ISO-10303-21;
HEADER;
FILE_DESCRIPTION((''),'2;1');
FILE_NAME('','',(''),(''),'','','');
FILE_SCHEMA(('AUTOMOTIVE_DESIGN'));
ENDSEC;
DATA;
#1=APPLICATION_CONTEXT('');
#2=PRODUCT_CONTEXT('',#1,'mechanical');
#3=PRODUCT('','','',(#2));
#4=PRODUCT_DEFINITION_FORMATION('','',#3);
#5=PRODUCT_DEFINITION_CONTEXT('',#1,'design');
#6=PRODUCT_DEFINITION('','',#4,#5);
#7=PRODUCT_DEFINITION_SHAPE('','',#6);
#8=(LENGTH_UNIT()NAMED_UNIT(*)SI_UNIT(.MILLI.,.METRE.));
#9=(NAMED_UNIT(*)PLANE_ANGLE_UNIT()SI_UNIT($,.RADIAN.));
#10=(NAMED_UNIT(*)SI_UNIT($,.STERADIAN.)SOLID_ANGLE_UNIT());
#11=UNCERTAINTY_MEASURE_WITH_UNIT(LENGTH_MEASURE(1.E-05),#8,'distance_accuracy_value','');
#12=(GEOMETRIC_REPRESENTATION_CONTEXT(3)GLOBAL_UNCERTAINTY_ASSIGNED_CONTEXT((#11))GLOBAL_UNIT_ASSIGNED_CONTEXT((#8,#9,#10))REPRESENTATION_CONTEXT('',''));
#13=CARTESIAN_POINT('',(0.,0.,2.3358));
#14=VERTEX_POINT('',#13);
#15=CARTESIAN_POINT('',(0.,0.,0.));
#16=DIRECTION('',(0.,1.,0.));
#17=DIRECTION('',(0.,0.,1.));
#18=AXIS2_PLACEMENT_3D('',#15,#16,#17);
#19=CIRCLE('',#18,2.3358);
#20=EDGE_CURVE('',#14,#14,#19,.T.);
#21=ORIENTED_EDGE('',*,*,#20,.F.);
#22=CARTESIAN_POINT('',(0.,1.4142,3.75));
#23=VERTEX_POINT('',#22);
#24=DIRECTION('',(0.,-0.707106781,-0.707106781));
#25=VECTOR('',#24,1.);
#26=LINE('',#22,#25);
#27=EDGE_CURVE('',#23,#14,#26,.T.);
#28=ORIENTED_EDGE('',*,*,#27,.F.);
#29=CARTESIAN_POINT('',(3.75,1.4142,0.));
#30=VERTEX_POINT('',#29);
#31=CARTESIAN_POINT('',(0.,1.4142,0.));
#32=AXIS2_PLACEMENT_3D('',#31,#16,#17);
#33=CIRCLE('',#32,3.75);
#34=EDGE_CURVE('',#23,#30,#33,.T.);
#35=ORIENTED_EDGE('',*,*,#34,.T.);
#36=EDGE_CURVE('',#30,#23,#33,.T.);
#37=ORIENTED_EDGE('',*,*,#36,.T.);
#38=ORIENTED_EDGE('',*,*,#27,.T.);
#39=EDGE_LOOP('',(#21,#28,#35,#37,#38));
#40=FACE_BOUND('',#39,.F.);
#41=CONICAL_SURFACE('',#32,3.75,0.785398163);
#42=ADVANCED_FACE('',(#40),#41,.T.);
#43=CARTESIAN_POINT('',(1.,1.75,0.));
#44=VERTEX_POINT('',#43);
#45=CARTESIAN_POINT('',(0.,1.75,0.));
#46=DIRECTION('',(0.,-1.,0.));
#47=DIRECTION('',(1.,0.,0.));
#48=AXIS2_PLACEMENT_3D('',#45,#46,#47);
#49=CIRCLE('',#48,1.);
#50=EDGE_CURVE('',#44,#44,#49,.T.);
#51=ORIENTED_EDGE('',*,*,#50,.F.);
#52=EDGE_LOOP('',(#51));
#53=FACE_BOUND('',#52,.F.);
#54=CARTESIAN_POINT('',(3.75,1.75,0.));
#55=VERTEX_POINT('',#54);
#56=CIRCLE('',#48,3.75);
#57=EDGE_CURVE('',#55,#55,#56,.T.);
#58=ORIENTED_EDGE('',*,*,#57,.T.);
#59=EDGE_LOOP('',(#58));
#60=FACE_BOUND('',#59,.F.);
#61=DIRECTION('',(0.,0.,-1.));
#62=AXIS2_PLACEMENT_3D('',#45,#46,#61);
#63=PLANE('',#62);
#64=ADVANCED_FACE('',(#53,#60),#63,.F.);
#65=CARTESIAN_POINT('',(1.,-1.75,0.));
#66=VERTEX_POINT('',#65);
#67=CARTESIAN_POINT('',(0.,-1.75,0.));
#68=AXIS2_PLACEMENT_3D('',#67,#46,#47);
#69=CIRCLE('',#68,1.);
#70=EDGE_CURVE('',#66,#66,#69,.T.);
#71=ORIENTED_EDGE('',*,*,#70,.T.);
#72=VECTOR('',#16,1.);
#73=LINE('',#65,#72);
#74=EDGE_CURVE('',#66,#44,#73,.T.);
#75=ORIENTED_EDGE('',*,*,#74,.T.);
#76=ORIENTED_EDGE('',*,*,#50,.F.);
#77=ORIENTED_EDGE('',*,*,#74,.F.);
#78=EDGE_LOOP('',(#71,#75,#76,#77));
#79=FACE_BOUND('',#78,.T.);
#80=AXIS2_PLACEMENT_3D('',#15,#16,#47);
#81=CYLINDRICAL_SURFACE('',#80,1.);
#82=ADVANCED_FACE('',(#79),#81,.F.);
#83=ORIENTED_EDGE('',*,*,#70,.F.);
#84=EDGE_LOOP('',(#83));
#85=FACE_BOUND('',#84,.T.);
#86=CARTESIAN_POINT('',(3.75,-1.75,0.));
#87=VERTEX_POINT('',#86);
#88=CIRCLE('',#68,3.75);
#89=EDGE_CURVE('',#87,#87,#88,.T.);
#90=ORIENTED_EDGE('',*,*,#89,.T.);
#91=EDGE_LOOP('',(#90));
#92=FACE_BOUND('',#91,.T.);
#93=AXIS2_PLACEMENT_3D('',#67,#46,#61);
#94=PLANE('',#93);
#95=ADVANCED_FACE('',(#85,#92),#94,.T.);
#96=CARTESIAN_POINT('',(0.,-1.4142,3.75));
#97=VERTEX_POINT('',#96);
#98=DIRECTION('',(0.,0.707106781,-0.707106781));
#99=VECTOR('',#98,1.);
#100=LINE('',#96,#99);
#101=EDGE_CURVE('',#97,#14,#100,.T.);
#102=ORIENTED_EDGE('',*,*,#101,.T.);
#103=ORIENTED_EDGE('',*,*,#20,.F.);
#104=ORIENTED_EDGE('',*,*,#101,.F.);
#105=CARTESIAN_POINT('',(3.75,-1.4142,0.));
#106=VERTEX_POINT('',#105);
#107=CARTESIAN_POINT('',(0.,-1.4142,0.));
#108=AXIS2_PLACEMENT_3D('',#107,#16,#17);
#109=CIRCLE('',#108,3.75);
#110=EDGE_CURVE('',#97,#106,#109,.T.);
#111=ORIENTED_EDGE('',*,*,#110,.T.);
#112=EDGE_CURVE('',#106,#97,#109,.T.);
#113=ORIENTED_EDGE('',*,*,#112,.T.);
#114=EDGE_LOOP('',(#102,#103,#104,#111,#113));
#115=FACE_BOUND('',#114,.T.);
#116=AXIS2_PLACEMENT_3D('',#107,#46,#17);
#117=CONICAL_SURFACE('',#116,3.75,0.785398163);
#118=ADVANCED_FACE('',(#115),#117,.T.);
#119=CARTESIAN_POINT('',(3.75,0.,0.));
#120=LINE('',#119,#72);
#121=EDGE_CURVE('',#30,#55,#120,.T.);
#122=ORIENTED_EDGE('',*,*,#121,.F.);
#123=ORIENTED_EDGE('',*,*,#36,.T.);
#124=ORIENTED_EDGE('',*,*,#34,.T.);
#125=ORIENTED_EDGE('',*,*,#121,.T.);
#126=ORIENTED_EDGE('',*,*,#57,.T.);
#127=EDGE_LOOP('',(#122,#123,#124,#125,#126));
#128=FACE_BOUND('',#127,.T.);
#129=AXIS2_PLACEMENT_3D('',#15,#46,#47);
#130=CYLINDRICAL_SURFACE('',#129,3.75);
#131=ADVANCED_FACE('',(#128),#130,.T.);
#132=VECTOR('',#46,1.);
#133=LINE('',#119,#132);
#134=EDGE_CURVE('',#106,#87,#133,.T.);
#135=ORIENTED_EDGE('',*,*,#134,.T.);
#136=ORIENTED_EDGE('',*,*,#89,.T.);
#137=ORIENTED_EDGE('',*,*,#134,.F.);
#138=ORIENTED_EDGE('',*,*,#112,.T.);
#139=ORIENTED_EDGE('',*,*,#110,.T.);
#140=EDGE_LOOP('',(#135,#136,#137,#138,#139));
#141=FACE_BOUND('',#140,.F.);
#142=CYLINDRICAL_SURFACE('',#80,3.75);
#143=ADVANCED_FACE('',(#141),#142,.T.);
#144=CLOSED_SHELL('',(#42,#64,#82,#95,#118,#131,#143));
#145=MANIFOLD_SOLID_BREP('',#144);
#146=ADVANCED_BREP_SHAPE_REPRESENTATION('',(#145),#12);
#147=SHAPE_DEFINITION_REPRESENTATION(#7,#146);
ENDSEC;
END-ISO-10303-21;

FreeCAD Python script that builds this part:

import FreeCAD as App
import Part
import Sketcher
from FreeCAD import Vector

doc = App.newDocument("Part")
params = doc.addObject("Spreadsheet::Sheet", "Params")
for row, (alias, value) in enumerate([
    ("sketch1_diameter", "2 mm"),
    ("sketch1_diameter2", "7.5 mm"),
    ("pad1_length", "3.5 mm"),
    ("sketch2_length", "2 mm"),
    ("groove_angle", "360 deg"),
], start=1):
    params.set(f"A{row}", alias)
    params.set(f"B{row}", "=" + value)
    params.setAlias(f"B{row}", alias)

body = doc.addObject("PartDesign::Body", "Body")

# Sketch on XZ plane
sketch1 = doc.addObject("Sketcher::SketchObject", "Sketch")
body.addObject(sketch1)
sketch1.AttachmentSupport = (doc.XZ_Plane, [""])
sketch1.MapMode = "FlatFace"
sketch1.addGeometry([
    Part.Circle(Vector(0, 0, 0), Vector(0, 0, 1), 3.75),
    Part.Circle(Vector(0, 0, 0), Vector(0, 0, 1), 1),
], False)
sketch1.addConstraint([
    Sketcher.Constraint("Coincident", 0, 3, -1, 1),
    Sketcher.Constraint("Coincident", 1, 3, -1, 1),
    Sketcher.Constraint("Diameter", 1, 2.0),
    Sketcher.Constraint("Diameter", 0, 7.5),
])
sketch1.setExpression("Constraints[2]", "Params.sketch1_diameter")
sketch1.setExpression("Constraints[3]", "Params.sketch1_diameter2")
pad1 = doc.addObject("PartDesign::Pad", "Pad")
body.addObject(pad1)
pad1.Profile = sketch1
pad1.setExpression("Length", "Params.pad1_length")
pad1.Midplane = True

# Sketch on YZ plane
sketch2 = doc.addObject("Sketcher::SketchObject", "Sketch001")
body.addObject(sketch2)
sketch2.AttachmentSupport = (doc.YZ_Plane, [""])
sketch2.MapMode = "FlatFace"
sketch2.addGeometry([
    Part.LineSegment(Vector(-1.4142, 3.75, 0), Vector(1.4142, 3.75, 0)),
    Part.LineSegment(Vector(1.4142, 3.75, 0), Vector(0, 2.3358, 0)),
    Part.LineSegment(Vector(0, 2.3358, 0), Vector(-1.4142, 3.75, 0)),
], False)
sketch2.addConstraint([
    Sketcher.Constraint("Coincident", 0, 2, 1, 1),
    Sketcher.Constraint("Coincident", 1, 2, 2, 1),
    Sketcher.Constraint("Coincident", 2, 2, 0, 1),
    Sketcher.Constraint("Horizontal", 0),
    Sketcher.Constraint("PointOnObject", 1, 2, -2),
    Sketcher.Constraint("Perpendicular", 1, 2),
    Sketcher.Constraint("Equal", 1, 2),
    Sketcher.Constraint("Distance", 1, 2.0),
    Sketcher.Constraint("DistanceY", -1, 1, 0, 2, 3.75),
])
sketch2.setExpression("Constraints[7]", "Params.sketch2_length")
groove = doc.addObject("PartDesign::Groove", "Groove")
body.addObject(groove)
groove.Profile = sketch2
groove.ReferenceAxis = (sketch2, ["H_Axis"])
groove.setExpression("Angle", "Params.groove_angle")

doc.recompute()
